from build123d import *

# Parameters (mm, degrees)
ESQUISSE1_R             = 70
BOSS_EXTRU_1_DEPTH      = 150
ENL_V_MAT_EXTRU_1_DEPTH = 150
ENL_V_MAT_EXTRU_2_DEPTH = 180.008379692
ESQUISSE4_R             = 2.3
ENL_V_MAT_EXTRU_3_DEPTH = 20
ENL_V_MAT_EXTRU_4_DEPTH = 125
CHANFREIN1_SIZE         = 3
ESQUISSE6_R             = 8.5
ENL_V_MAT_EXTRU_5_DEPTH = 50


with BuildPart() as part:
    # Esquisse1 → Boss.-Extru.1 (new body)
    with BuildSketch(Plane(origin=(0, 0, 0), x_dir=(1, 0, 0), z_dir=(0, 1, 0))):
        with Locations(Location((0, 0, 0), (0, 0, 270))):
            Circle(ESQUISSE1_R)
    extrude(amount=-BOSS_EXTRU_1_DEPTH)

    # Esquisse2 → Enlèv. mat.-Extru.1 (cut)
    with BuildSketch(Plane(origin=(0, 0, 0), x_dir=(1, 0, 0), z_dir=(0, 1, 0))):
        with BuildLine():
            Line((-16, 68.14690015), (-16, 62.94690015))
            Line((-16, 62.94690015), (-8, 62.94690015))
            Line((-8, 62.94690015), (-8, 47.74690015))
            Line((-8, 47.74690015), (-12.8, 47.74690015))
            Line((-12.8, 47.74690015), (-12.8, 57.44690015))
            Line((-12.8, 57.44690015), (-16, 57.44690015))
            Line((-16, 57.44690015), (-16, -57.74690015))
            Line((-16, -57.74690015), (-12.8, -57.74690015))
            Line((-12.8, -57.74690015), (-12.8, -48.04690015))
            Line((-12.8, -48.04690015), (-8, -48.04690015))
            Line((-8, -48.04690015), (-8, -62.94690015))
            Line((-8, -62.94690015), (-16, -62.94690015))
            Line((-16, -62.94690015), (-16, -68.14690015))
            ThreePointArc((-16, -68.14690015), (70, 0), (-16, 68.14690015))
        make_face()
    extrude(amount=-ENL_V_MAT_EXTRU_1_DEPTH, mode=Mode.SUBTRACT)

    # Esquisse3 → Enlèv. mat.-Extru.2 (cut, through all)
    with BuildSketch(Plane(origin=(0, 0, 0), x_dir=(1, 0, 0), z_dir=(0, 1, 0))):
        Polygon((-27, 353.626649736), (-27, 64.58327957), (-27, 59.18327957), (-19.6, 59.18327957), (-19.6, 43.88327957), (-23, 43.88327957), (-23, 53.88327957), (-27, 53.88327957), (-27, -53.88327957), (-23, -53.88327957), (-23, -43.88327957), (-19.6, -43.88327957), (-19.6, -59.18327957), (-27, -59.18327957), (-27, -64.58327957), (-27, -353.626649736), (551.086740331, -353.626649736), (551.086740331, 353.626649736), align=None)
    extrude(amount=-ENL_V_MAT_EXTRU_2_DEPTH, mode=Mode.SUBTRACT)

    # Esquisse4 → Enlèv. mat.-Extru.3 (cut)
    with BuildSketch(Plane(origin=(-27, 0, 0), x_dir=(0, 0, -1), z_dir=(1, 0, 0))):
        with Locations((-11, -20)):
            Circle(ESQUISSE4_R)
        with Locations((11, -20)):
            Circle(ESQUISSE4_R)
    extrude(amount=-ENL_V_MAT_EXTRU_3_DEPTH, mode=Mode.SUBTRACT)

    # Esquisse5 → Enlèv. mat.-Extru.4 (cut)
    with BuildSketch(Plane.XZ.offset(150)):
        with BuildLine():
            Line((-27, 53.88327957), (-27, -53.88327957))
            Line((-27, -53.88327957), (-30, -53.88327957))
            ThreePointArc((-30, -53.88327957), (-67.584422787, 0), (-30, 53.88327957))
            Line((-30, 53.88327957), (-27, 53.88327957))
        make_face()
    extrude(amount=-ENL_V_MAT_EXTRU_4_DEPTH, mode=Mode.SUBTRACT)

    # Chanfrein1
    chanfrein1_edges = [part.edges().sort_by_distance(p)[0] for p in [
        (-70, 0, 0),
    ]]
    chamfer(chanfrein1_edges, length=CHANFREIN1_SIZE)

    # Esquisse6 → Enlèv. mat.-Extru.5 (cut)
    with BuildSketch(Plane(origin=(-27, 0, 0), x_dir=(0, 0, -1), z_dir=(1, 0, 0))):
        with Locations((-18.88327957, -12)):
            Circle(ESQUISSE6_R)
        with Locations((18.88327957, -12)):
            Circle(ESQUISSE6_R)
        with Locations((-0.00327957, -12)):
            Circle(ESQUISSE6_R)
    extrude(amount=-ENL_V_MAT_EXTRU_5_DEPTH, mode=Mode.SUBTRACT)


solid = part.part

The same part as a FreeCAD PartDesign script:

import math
import FreeCAD as App
import Part
import Sketcher
from FreeCAD import Vector


def edges_at(feature, points):
    """Names of the edges that pass closest to the given points."""
    edges = feature.Shape.Edges
    near = lambda p: min(range(len(edges)), key=lambda i: edges[i].distToShape(Part.Vertex(*p))[0])
    return sorted({f"Edge{near(p) + 1}" for p in points})


def add_polygon(sketch, points):
    """Adds a closed chain of lines whose ends are joined by coincident constraints."""
    first, n = sketch.GeometryCount, len(points)
    for a, b in zip(points, points[1:] + points[:1]):
        sketch.addGeometry(Part.LineSegment(App.Vector(*a, 0), App.Vector(*b, 0)), False)
    for i in range(n):
        sketch.addConstraint(Sketcher.Constraint("Coincident", first + i, 2, first + (i + 1) % n, 1))

doc = App.newDocument("Part")
params = doc.addObject("Spreadsheet::Sheet", "Params")
for row, (alias, value) in enumerate([
    ("sketch1_diameter", "140 mm"),
    ("pad1_length", "150 mm"),
    ("sketch2_radius", "70 mm"),
    ("sketch2_width", "8 mm"),
    ("sketch2_width2", "4.8 mm"),
    ("sketch2_height", "5.2 mm"),
    ("sketch2_height2", "15.2 mm"),
    ("pocket1_length", "150 mm"),
    ("sketch3_width", "4 mm"),
    ("sketch3_height", "10 mm"),
    ("sketch3_width2", "7.4 mm"),
    ("sketch3_height2", "15.3 mm"),
    ("sketch4_diameter", "4.6 mm"),
    ("pocket3_length", "20 mm"),
    ("sketch5_width", "3 mm"),
    ("pocket4_length", "125 mm"),
    ("chamfer_size", "3 mm"),
    ("sketch6_diameter", "17 mm"),
    ("pocket5_length", "50 mm"),
], start=1):
    params.set(f"A{row}", alias)
    params.set(f"B{row}", "=" + value)
    params.setAlias(f"B{row}", alias)

body = doc.addObject("PartDesign::Body", "Body")

sketch1 = doc.addObject("Sketcher::SketchObject", "Sketch")
body.addObject(sketch1)
sketch1.AttachmentSupport = (doc.XZ_Plane, [""])
sketch1.MapMode = "FlatFace"
sketch1.addGeometry(Part.Circle(Vector(0, 0, 0), Vector(0, 0, 1), 70), False)
sketch1.addConstraint(Sketcher.Constraint("Coincident", 0, 3, -1, 1))
sketch1.addConstraint(Sketcher.Constraint("Diameter", 0, 140.0))
sketch1.setExpression("Constraints[1]", "Params.sketch1_diameter")
pad1 = doc.addObject("PartDesign::Pad", "Pad")
body.addObject(pad1)
pad1.Profile = sketch1
pad1.setExpression("Length", "Params.pad1_length")

sketch2 = doc.addObject("Sketcher::SketchObject", "Sketch001")
body.addObject(sketch2)
sketch2.AttachmentSupport = (doc.XZ_Plane, [""])
sketch2.MapMode = "FlatFace"
sketch2.addGeometry(Part.LineSegment(Vector(-16, -68.1, 0), Vector(-16, -62.9, 0)), False)
sketch2.addGeometry(Part.LineSegment(Vector(-16, -62.9, 0), Vector(-8, -62.9, 0)), False)
sketch2.addGeometry(Part.LineSegment(Vector(-8, -62.9, 0), Vector(-8, -47.7, 0)), False)
sketch2.addGeometry(Part.LineSegment(Vector(-8, -47.7, 0), Vector(-12.8, -47.7, 0)), False)
sketch2.addGeometry(Part.LineSegment(Vector(-12.8, -47.7, 0), Vector(-12.8, -57.4, 0)), False)
sketch2.addGeometry(Part.LineSegment(Vector(-12.8, -57.4, 0), Vector(-16, -57.4, 0)), False)
sketch2.addGeometry(Part.LineSegment(Vector(-16, -57.4, 0), Vector(-16, 57.7, 0)), False)
sketch2.addGeometry(Part.LineSegment(Vector(-16, 57.7, 0), Vector(-12.8, 57.7, 0)), False)
sketch2.addGeometry(Part.LineSegment(Vector(-12.8, 57.7, 0), Vector(-12.8, 48, 0)), False)
sketch2.addGeometry(Part.LineSegment(Vector(-12.8, 48, 0), Vector(-8, 48, 0)), False)
sketch2.addGeometry(Part.LineSegment(Vector(-8, 48, 0), Vector(-8, 62.9, 0)), False)
sketch2.addGeometry(Part.LineSegment(Vector(-8, 62.9, 0), Vector(-16, 62.9, 0)), False)
sketch2.addGeometry(Part.LineSegment(Vector(-16, 62.9, 0), Vector(-16, 68.1, 0)), False)
sketch2.addGeometry(Part.ArcOfCircle(Part.Circle(Vector(0, 0, 0), Vector(0, 0, 1), 70), math.radians(-103), math.radians(103)), False)
sketch2.addConstraint(Sketcher.Constraint("Coincident", 0, 2, 1, 1))
sketch2.addConstraint(Sketcher.Constraint("Coincident", 1, 2, 2, 1))
sketch2.addConstraint(Sketcher.Constraint("Coincident", 2, 2, 3, 1))
sketch2.addConstraint(Sketcher.Constraint("Coincident", 3, 2, 4, 1))
sketch2.addConstraint(Sketcher.Constraint("Coincident", 4, 2, 5, 1))
sketch2.addConstraint(Sketcher.Constraint("Coincident", 5, 2, 6, 1))
sketch2.addConstraint(Sketcher.Constraint("Coincident", 6, 2, 7, 1))
sketch2.addConstraint(Sketcher.Constraint("Coincident", 7, 2, 8, 1))
sketch2.addConstraint(Sketcher.Constraint("Coincident", 8, 2, 9, 1))
sketch2.addConstraint(Sketcher.Constraint("Coincident", 9, 2, 10, 1))
sketch2.addConstraint(Sketcher.Constraint("Coincident", 10, 2, 11, 1))
sketch2.addConstraint(Sketcher.Constraint("Coincident", 11, 2, 12, 1))
sketch2.addConstraint(Sketcher.Constraint("Coincident", 12, 2, 13, 2))
sketch2.addConstraint(Sketcher.Constraint("Coincident", 13, 1, 0, 1))
sketch2.addConstraint(Sketcher.Constraint("Vertical", 0))
sketch2.addConstraint(Sketcher.Constraint("Horizontal", 1))
sketch2.addConstraint(Sketcher.Constraint("Vertical", 2))
sketch2.addConstraint(Sketcher.Constraint("Horizontal", 3))
sketch2.addConstraint(Sketcher.Constraint("Vertical", 4))
sketch2.addConstraint(Sketcher.Constraint("Horizontal", 5))
sketch2.addConstraint(Sketcher.Constraint("Vertical", 6))
sketch2.addConstraint(Sketcher.Constraint("Horizontal", 7))
sketch2.addConstraint(Sketcher.Constraint("Vertical", 8))
sketch2.addConstraint(Sketcher.Constraint("Horizontal", 9))
sketch2.addConstraint(Sketcher.Constraint("Vertical", 10))
sketch2.addConstraint(Sketcher.Constraint("Horizontal", 11))
sketch2.addConstraint(Sketcher.Constraint("Vertical", 12))
sketch2.addConstraint(Sketcher.Constraint("Coincident", 13, 3, -1, 1))
sketch2.addConstraint(Sketcher.Constraint("Symmetric", 1, 2, 10, 2, -1))
sketch2.addConstraint(Sketcher.Constraint("Vertical", 0, 2, 5, 2))
sketch2.addConstraint(Sketcher.Constraint("Vertical", 4, 2, 7, 2))
sketch2.addConstraint(Sketcher.Constraint("Vertical", 6, 2, 11, 2))
sketch2.addConstraint(Sketcher.Constraint("Equal", 4, 8))
sketch2.addConstraint(Sketcher.Constraint("Radius", 13, 70.0))
sketch2.addConstraint(Sketcher.Constraint("DistanceX", 1, 1, 1, 2, 8.0))
sketch2.addConstraint(Sketcher.Constraint("DistanceX", 3, 2, 3, 1, 4.8))
sketch2.addConstraint(Sketcher.Constraint("DistanceY", 0, 1, 0, 2, 5.2))
sketch2.addConstraint(Sketcher.Constraint("DistanceY", 2, 1, 2, 2, 15.2))
sketch2.addConstraint(Sketcher.Constraint("DistanceY", 4, 2, 4, 1, 9.7))
sketch2.addConstraint(Sketcher.Constraint("DistanceY", 10, 1, 10, 2, 14.9))
sketch2.addConstraint(Sketcher.Constraint("DistanceX", 0, 2, -1, 1, 16.0))
sketch2.setExpression("Constraints[33]", "Params.sketch2_radius")
sketch2.setExpression("Constraints[34]", "Params.sketch2_width")
sketch2.setExpression("Constraints[35]", "Params.sketch2_width2")
sketch2.setExpression("Constraints[36]", "Params.sketch2_height")
sketch2.setExpression("Constraints[37]", "Params.sketch2_height2")
pocket1 = doc.addObject("PartDesign::Pocket", "Pocket")
body.addObject(pocket1)
pocket1.Profile = sketch2
pocket1.setExpression("Length", "Params.pocket1_length")
pocket1.Reversed = True

sketch3 = doc.addObject("Sketcher::SketchObject", "Sketch002")
body.addObject(sketch3)
sketch3.AttachmentSupport = (doc.XZ_Plane, [""])
sketch3.MapMode = "FlatFace"
add_polygon(sketch3, [(-27, -353.6), (-27, -59.2), (-19.6, -59.2), (-19.6, -43.9), (-23, -43.9), (-23, -53.9), (-27, -53.9), (-27, 53.9), (-23, 53.9), (-23, 43.9), (-19.6, 43.9), (-19.6, 59.2), (-27, 59.2), (-27, 353.6), (551.1, 353.6), (551.1, -353.6)])
sketch3.addConstraint(Sketcher.Constraint("Vertical", 0))
sketch3.addConstraint(Sketcher.Constraint("Horizontal", 1))
sketch3.addConstraint(Sketcher.Constraint("Vertical", 2))
sketch3.addConstraint(Sketcher.Constraint("Horizontal", 3))
sketch3.addConstraint(Sketcher.Constraint("Vertical", 4))
sketch3.addConstraint(Sketcher.Constraint("Horizontal", 5))
sketch3.addConstraint(Sketcher.Constraint("Vertical", 6))
sketch3.addConstraint(Sketcher.Constraint("Horizontal", 7))
sketch3.addConstraint(Sketcher.Constraint("Vertical", 8))
sketch3.addConstraint(Sketcher.Constraint("Horizontal", 9))
sketch3.addConstraint(Sketcher.Constraint("Vertical", 10))
sketch3.addConstraint(Sketcher.Constraint("Horizontal", 11))
sketch3.addConstraint(Sketcher.Constraint("Vertical", 12))
sketch3.addConstraint(Sketcher.Constraint("Horizontal", 13))
sketch3.addConstraint(Sketcher.Constraint("Vertical", 14))
sketch3.addConstraint(Sketcher.Constraint("Horizontal", 15))
sketch3.addConstraint(Sketcher.Constraint("Symmetric", 4, 2, 7, 2, -1))
sketch3.addConstraint(Sketcher.Constraint("Symmetric", 2, 2, 9, 2, -1))
sketch3.addConstraint(Sketcher.Constraint("Symmetric", 0, 2, 11, 2, -1))
sketch3.addConstraint(Sketcher.Constraint("Vertical", 0, 2, 5, 2))
sketch3.addConstraint(Sketcher.Constraint("Equal", 0, 12))
sketch3.addConstraint(Sketcher.Constraint("DistanceX", 5, 2, 5, 1, 4.0))
sketch3.addConstraint(Sketcher.Constraint("DistanceY", 4, 2, 4, 1, 10.0))
sketch3.addConstraint(Sketcher.Constraint("DistanceX", 1, 1, 1, 2, 7.4))
sketch3.addConstraint(Sketcher.Constraint("DistanceY", 2, 1, 2, 2, 15.3))
sketch3.addConstraint(Sketcher.Constraint("DistanceX", 0, 2, -1, 1, 27.0))
sketch3.addConstraint(Sketcher.Constraint("DistanceY", 14, 2, 14, 1, 707.253299))
sketch3.addConstraint(Sketcher.Constraint("DistanceX", 13, 1, 13, 2, 578.08674))
sketch3.addConstraint(Sketcher.Constraint("DistanceY", 0, 1, 0, 2, 294.44337))
sketch3.setExpression("Constraints[37]", "Params.sketch3_width")
sketch3.setExpression("Constraints[38]", "Params.sketch3_height")
sketch3.setExpression("Constraints[39]", "Params.sketch3_width2")
sketch3.setExpression("Constraints[40]", "Params.sketch3_height2")
pocket2 = doc.addObject("PartDesign::Pocket", "Pocket001")
body.addObject(pocket2)
pocket2.Profile = sketch3
pocket2.Type = "ThroughAll"
pocket2.Reversed = True

sketch4 = doc.addObject("Sketcher::SketchObject", "Sketch003")
body.addObject(sketch4)
sketch4.AttachmentSupport = (doc.YZ_Plane, [""])
sketch4.MapMode = "FlatFace"
sketch4.AttachmentOffset = App.Placement(Vector(0, 0, -27), App.Rotation())
sketch4.addGeometry(Part.Circle(Vector(-20, 11, 0), Vector(0, 0, 1), 2.3), False)
sketch4.addGeometry(Part.Circle(Vector(-20, -11, 0), Vector(0, 0, 1), 2.3), False)
sketch4.addConstraint(Sketcher.Constraint("Equal", 0, 1))
sketch4.addConstraint(Sketcher.Constraint("Symmetric", 0, 3, 1, 3, -1))
sketch4.addConstraint(Sketcher.Constraint("Diameter", 0, 4.6))
sketch4.addConstraint(Sketcher.Constraint("DistanceX", 0, 3, -1, 1, 20.0))
sketch4.addConstraint(Sketcher.Constraint("DistanceY", -1, 1, 0, 3, 11.0))
sketch4.setExpression("Constraints[2]", "Params.sketch4_diameter")
pocket3 = doc.addObject("PartDesign::Pocket", "Pocket002")
body.addObject(pocket3)
pocket3.Profile = sketch4
pocket3.setExpression("Length", "Params.pocket3_length")

sketch5 = doc.addObject("Sketcher::SketchObject", "Sketch004")
body.addObject(sketch5)
sketch5.AttachmentSupport = (doc.XZ_Plane, [""])
sketch5.MapMode = "FlatFace"
sketch5.AttachmentOffset = App.Placement(Vector(0, 0, 150), App.Rotation())
sketch5.addGeometry(Part.LineSegment(Vector(-27, -53.9, 0), Vector(-27, 53.9, 0)), False)
sketch5.addGeometry(Part.LineSegment(Vector(-27, 53.9, 0), Vector(-30, 53.9, 0)), False)
sketch5.addGeometry(Part.ArcOfCircle(Part.Circle(Vector(-10.2, 0, 0), Vector(0, 0, 1), 57.4), math.radians(110), math.radians(250)), False)
sketch5.addGeometry(Part.LineSegment(Vector(-30, -53.9, 0), Vector(-27, -53.9, 0)), False)
sketch5.addConstraint(Sketcher.Constraint("Coincident", 0, 2, 1, 1))
sketch5.addConstraint(Sketcher.Constraint("Coincident", 1, 2, 2, 1))
sketch5.addConstraint(Sketcher.Constraint("Coincident", 2, 2, 3, 1))
sketch5.addConstraint(Sketcher.Constraint("Coincident", 3, 2, 0, 1))
sketch5.addConstraint(Sketcher.Constraint("Vertical", 0))
sketch5.addConstraint(Sketcher.Constraint("Horizontal", 1))
sketch5.addConstraint(Sketcher.Constraint("Horizontal", 3))
sketch5.addConstraint(Sketcher.Constraint("Symmetric", 1, 2, 2, 2, -1))
sketch5.addConstraint(Sketcher.Constraint("DistanceX", 1, 2, 1, 1, 3.0))
sketch5.addConstraint(Sketcher.Constraint("DistanceX", 0, 2, -1, 1, 27.0))
sketch5.addConstraint(Sketcher.Constraint("Radius", 2, 57.41736))
sketch5.addConstraint(Sketcher.Constraint("DistanceY", 0, 1, 0, 2, 107.766559))
sketch5.setExpression("Constraints[8]", "Params.sketch5_width")
pocket4 = doc.addObject("PartDesign::Pocket", "Pocket003")
body.addObject(pocket4)
pocket4.Profile = sketch5
pocket4.setExpression("Length", "Params.pocket4_length")
doc.recompute()

chamfer = doc.addObject("PartDesign::Chamfer", "Chamfer")
body.addObject(chamfer)
chamfer.Base = (pocket4, edges_at(pocket4, [(-70, 0, 0)]))
chamfer.setExpression("Size", "Params.chamfer_size")

sketch6 = doc.addObject("Sketcher::SketchObject", "Sketch005")
body.addObject(sketch6)
sketch6.AttachmentSupport = (doc.YZ_Plane, [""])
sketch6.MapMode = "FlatFace"
sketch6.AttachmentOffset = App.Placement(Vector(0, 0, -27), App.Rotation())
sketch6.addGeometry(Part.Circle(Vector(-12, 19, 0), Vector(0, 0, 1), 8), False)
sketch6.addGeometry(Part.Circle(Vector(-12, -19, 0), Vector(0, 0, 1), 8), False)
sketch6.addGeometry(Part.Circle(Vector(-12, 0, 0), Vector(0, 0, 1), 8), False)
sketch6.addConstraint(Sketcher.Constraint("Equal", 0, 1))
sketch6.addConstraint(Sketcher.Constraint("Equal", 1, 2))
sketch6.addConstraint(Sketcher.Constraint("Symmetric", 0, 3, 1, 3, -1))
sketch6.addConstraint(Sketcher.Constraint("Vertical", 1, 3, 2, 3))
sketch6.addConstraint(Sketcher.Constraint("Diameter", 0, 17.0))
sketch6.addConstraint(Sketcher.Constraint("DistanceX", 0, 3, -1, 1, 12.0))
sketch6.addConstraint(Sketcher.Constraint("DistanceY", 2, 3, 0, 3, 18.88))
sketch6.addConstraint(Sketcher.Constraint("DistanceY", -1, 1, 0, 3, 18.88328))
sketch6.setExpression("Constraints[4]", "Params.sketch6_diameter")
pocket5 = doc.addObject("PartDesign::Pocket", "Pocket004")
body.addObject(pocket5)
pocket5.Profile = sketch6
pocket5.setExpression("Length", "Params.pocket5_length")

doc.recompute()
